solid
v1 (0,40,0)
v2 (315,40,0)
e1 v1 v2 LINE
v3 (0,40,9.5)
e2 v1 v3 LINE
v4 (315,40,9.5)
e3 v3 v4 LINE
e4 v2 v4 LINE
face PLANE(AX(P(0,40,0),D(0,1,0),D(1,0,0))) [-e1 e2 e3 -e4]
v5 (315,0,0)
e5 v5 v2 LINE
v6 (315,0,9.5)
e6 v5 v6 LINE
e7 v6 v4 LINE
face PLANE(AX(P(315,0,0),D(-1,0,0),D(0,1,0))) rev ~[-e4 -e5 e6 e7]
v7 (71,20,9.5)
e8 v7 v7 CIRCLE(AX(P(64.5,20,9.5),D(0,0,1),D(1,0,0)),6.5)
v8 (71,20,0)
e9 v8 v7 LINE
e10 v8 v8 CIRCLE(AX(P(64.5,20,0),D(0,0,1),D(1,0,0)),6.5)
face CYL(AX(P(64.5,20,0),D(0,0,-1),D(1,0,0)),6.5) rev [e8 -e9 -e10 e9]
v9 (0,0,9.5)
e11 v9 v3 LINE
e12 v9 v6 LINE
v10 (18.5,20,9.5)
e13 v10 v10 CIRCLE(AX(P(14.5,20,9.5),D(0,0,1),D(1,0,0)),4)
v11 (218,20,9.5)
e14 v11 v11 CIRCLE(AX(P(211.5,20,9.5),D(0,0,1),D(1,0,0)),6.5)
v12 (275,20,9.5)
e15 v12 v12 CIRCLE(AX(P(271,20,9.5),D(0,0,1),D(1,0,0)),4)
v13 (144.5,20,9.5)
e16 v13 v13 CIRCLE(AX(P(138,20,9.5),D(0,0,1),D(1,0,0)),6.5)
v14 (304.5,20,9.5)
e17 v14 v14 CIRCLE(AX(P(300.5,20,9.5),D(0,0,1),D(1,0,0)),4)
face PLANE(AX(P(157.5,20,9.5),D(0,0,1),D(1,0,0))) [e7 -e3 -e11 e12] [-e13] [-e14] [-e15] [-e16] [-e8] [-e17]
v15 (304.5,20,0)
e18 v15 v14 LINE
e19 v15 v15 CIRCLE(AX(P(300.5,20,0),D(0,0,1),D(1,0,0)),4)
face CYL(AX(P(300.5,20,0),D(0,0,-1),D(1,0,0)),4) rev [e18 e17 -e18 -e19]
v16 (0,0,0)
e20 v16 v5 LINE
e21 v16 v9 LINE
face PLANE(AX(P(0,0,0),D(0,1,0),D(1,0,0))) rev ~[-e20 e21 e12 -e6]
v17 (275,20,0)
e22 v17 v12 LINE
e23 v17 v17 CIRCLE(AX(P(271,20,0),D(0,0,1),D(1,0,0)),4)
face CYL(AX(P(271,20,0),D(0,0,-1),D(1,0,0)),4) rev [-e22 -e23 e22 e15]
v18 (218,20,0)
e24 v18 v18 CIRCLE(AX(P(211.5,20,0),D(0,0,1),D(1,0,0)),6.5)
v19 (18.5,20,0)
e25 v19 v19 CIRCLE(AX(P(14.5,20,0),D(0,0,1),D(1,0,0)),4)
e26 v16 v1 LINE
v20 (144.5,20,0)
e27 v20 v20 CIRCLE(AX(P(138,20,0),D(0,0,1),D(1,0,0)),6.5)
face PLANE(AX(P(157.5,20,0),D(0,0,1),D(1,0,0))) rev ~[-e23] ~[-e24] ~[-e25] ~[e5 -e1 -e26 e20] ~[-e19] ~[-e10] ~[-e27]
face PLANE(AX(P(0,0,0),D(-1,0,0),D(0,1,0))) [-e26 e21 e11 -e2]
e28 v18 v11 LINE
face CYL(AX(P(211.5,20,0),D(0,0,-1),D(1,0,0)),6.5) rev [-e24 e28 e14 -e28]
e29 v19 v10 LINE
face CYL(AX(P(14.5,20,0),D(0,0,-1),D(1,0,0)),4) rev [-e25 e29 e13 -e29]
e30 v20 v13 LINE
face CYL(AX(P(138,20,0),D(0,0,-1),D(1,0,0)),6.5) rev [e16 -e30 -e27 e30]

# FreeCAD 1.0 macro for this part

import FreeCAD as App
import Part
import Sketcher

doc = App.newDocument("Part")
body = doc.addObject("PartDesign::Body", "Body")

sketch1 = body.newObject("Sketcher::SketchObject", "Sketch")
sketch1.AttachmentSupport = (doc.getObject("XY_Plane"), [""])
sketch1.MapMode = "FlatFace"
sketch1.addGeometry(Part.LineSegment(App.Vector(0, 40, 0), App.Vector(0, 0, 0)), False)
sketch1.addGeometry(Part.LineSegment(App.Vector(0, 0, 0), App.Vector(315, 0, 0)), False)
sketch1.addGeometry(Part.LineSegment(App.Vector(315, 0, 0), App.Vector(315, 40, 0)), False)
sketch1.addGeometry(Part.LineSegment(App.Vector(315, 40, 0), App.Vector(0, 40, 0)), False)
sketch1.addGeometry(Part.Circle(App.Vector(14.5, 20, 0), App.Vector(0, 0, 1), 4), False)
sketch1.addGeometry(Part.Circle(App.Vector(64.5, 20, 0), App.Vector(0, 0, 1), 6.5), False)
sketch1.addGeometry(Part.Circle(App.Vector(138, 20, 0), App.Vector(0, 0, 1), 6.5), False)
sketch1.addGeometry(Part.Circle(App.Vector(211.5, 20, 0), App.Vector(0, 0, 1), 6.5), False)
sketch1.addGeometry(Part.Circle(App.Vector(271, 20, 0), App.Vector(0, 0, 1), 4), False)
sketch1.addGeometry(Part.Circle(App.Vector(300.5, 20, 0), App.Vector(0, 0, 1), 4), False)
sketch1.addConstraint(Sketcher.Constraint("Coincident", 0, 2, 1, 1))
sketch1.addConstraint(Sketcher.Constraint("Coincident", 1, 2, 2, 1))
sketch1.addConstraint(Sketcher.Constraint("Coincident", 2, 2, 3, 1))
sketch1.addConstraint(Sketcher.Constraint("Coincident", 3, 2, 0, 1))
sketch1.addConstraint(Sketcher.Constraint("Vertical", 0))
sketch1.addConstraint(Sketcher.Constraint("Horizontal", 1))
sketch1.addConstraint(Sketcher.Constraint("Vertical", 2))
sketch1.addConstraint(Sketcher.Constraint("Horizontal", 3))
sketch1.addConstraint(Sketcher.Constraint("Coincident", 0, 2, -1, 1))
sketch1.addConstraint(Sketcher.Constraint("Equal", 5, 6))
sketch1.addConstraint(Sketcher.Constraint("Equal", 6, 7))
sketch1.addConstraint(Sketcher.Constraint("Equal", 4, 8))
sketch1.addConstraint(Sketcher.Constraint("Equal", 8, 9))
sketch1.addConstraint(Sketcher.Constraint("Horizontal", 4, 3, 5, 3))
sketch1.addConstraint(Sketcher.Constraint("Horizontal", 5, 3, 6, 3))
sketch1.addConstraint(Sketcher.Constraint("Horizontal", 6, 3, 7, 3))
sketch1.addConstraint(Sketcher.Constraint("Horizontal", 7, 3, 8, 3))
sketch1.addConstraint(Sketcher.Constraint("Horizontal", 8, 3, 9, 3))
sketch1.addConstraint(Sketcher.Constraint("Diameter", 4, 8.0))
sketch1.addConstraint(Sketcher.Constraint("Diameter", 5, 13.0))
sketch1.addConstraint(Sketcher.Constraint("DistanceX", 1, 1, 1, 2, 315.0))
sketch1.addConstraint(Sketcher.Constraint("DistanceY", 0, 2, 0, 1, 40.0))
sketch1.addConstraint(Sketcher.Constraint("DistanceY", -1, 1, 4, 3, 20.0))
sketch1.addConstraint(Sketcher.Constraint("DistanceX", -1, 1, 6, 3, 138.0))
sketch1.addConstraint(Sketcher.Constraint("DistanceX", -1, 1, 8, 3, 271.0))
sketch1.addConstraint(Sketcher.Constraint("DistanceX", 4, 3, 5, 3, 50.0))
sketch1.addConstraint(Sketcher.Constraint("DistanceX", 5, 3, 7, 3, 147.0))
sketch1.addConstraint(Sketcher.Constraint("DistanceX", 7, 3, 9, 3, 89.0))
sketch1.addConstraint(Sketcher.Constraint("DistanceX", -1, 1, 4, 3, 14.5))
pad1 = body.newObject("PartDesign::Pad", "Pad")
pad1.Profile = sketch1
pad1.Length = 9.5

doc.recompute()
